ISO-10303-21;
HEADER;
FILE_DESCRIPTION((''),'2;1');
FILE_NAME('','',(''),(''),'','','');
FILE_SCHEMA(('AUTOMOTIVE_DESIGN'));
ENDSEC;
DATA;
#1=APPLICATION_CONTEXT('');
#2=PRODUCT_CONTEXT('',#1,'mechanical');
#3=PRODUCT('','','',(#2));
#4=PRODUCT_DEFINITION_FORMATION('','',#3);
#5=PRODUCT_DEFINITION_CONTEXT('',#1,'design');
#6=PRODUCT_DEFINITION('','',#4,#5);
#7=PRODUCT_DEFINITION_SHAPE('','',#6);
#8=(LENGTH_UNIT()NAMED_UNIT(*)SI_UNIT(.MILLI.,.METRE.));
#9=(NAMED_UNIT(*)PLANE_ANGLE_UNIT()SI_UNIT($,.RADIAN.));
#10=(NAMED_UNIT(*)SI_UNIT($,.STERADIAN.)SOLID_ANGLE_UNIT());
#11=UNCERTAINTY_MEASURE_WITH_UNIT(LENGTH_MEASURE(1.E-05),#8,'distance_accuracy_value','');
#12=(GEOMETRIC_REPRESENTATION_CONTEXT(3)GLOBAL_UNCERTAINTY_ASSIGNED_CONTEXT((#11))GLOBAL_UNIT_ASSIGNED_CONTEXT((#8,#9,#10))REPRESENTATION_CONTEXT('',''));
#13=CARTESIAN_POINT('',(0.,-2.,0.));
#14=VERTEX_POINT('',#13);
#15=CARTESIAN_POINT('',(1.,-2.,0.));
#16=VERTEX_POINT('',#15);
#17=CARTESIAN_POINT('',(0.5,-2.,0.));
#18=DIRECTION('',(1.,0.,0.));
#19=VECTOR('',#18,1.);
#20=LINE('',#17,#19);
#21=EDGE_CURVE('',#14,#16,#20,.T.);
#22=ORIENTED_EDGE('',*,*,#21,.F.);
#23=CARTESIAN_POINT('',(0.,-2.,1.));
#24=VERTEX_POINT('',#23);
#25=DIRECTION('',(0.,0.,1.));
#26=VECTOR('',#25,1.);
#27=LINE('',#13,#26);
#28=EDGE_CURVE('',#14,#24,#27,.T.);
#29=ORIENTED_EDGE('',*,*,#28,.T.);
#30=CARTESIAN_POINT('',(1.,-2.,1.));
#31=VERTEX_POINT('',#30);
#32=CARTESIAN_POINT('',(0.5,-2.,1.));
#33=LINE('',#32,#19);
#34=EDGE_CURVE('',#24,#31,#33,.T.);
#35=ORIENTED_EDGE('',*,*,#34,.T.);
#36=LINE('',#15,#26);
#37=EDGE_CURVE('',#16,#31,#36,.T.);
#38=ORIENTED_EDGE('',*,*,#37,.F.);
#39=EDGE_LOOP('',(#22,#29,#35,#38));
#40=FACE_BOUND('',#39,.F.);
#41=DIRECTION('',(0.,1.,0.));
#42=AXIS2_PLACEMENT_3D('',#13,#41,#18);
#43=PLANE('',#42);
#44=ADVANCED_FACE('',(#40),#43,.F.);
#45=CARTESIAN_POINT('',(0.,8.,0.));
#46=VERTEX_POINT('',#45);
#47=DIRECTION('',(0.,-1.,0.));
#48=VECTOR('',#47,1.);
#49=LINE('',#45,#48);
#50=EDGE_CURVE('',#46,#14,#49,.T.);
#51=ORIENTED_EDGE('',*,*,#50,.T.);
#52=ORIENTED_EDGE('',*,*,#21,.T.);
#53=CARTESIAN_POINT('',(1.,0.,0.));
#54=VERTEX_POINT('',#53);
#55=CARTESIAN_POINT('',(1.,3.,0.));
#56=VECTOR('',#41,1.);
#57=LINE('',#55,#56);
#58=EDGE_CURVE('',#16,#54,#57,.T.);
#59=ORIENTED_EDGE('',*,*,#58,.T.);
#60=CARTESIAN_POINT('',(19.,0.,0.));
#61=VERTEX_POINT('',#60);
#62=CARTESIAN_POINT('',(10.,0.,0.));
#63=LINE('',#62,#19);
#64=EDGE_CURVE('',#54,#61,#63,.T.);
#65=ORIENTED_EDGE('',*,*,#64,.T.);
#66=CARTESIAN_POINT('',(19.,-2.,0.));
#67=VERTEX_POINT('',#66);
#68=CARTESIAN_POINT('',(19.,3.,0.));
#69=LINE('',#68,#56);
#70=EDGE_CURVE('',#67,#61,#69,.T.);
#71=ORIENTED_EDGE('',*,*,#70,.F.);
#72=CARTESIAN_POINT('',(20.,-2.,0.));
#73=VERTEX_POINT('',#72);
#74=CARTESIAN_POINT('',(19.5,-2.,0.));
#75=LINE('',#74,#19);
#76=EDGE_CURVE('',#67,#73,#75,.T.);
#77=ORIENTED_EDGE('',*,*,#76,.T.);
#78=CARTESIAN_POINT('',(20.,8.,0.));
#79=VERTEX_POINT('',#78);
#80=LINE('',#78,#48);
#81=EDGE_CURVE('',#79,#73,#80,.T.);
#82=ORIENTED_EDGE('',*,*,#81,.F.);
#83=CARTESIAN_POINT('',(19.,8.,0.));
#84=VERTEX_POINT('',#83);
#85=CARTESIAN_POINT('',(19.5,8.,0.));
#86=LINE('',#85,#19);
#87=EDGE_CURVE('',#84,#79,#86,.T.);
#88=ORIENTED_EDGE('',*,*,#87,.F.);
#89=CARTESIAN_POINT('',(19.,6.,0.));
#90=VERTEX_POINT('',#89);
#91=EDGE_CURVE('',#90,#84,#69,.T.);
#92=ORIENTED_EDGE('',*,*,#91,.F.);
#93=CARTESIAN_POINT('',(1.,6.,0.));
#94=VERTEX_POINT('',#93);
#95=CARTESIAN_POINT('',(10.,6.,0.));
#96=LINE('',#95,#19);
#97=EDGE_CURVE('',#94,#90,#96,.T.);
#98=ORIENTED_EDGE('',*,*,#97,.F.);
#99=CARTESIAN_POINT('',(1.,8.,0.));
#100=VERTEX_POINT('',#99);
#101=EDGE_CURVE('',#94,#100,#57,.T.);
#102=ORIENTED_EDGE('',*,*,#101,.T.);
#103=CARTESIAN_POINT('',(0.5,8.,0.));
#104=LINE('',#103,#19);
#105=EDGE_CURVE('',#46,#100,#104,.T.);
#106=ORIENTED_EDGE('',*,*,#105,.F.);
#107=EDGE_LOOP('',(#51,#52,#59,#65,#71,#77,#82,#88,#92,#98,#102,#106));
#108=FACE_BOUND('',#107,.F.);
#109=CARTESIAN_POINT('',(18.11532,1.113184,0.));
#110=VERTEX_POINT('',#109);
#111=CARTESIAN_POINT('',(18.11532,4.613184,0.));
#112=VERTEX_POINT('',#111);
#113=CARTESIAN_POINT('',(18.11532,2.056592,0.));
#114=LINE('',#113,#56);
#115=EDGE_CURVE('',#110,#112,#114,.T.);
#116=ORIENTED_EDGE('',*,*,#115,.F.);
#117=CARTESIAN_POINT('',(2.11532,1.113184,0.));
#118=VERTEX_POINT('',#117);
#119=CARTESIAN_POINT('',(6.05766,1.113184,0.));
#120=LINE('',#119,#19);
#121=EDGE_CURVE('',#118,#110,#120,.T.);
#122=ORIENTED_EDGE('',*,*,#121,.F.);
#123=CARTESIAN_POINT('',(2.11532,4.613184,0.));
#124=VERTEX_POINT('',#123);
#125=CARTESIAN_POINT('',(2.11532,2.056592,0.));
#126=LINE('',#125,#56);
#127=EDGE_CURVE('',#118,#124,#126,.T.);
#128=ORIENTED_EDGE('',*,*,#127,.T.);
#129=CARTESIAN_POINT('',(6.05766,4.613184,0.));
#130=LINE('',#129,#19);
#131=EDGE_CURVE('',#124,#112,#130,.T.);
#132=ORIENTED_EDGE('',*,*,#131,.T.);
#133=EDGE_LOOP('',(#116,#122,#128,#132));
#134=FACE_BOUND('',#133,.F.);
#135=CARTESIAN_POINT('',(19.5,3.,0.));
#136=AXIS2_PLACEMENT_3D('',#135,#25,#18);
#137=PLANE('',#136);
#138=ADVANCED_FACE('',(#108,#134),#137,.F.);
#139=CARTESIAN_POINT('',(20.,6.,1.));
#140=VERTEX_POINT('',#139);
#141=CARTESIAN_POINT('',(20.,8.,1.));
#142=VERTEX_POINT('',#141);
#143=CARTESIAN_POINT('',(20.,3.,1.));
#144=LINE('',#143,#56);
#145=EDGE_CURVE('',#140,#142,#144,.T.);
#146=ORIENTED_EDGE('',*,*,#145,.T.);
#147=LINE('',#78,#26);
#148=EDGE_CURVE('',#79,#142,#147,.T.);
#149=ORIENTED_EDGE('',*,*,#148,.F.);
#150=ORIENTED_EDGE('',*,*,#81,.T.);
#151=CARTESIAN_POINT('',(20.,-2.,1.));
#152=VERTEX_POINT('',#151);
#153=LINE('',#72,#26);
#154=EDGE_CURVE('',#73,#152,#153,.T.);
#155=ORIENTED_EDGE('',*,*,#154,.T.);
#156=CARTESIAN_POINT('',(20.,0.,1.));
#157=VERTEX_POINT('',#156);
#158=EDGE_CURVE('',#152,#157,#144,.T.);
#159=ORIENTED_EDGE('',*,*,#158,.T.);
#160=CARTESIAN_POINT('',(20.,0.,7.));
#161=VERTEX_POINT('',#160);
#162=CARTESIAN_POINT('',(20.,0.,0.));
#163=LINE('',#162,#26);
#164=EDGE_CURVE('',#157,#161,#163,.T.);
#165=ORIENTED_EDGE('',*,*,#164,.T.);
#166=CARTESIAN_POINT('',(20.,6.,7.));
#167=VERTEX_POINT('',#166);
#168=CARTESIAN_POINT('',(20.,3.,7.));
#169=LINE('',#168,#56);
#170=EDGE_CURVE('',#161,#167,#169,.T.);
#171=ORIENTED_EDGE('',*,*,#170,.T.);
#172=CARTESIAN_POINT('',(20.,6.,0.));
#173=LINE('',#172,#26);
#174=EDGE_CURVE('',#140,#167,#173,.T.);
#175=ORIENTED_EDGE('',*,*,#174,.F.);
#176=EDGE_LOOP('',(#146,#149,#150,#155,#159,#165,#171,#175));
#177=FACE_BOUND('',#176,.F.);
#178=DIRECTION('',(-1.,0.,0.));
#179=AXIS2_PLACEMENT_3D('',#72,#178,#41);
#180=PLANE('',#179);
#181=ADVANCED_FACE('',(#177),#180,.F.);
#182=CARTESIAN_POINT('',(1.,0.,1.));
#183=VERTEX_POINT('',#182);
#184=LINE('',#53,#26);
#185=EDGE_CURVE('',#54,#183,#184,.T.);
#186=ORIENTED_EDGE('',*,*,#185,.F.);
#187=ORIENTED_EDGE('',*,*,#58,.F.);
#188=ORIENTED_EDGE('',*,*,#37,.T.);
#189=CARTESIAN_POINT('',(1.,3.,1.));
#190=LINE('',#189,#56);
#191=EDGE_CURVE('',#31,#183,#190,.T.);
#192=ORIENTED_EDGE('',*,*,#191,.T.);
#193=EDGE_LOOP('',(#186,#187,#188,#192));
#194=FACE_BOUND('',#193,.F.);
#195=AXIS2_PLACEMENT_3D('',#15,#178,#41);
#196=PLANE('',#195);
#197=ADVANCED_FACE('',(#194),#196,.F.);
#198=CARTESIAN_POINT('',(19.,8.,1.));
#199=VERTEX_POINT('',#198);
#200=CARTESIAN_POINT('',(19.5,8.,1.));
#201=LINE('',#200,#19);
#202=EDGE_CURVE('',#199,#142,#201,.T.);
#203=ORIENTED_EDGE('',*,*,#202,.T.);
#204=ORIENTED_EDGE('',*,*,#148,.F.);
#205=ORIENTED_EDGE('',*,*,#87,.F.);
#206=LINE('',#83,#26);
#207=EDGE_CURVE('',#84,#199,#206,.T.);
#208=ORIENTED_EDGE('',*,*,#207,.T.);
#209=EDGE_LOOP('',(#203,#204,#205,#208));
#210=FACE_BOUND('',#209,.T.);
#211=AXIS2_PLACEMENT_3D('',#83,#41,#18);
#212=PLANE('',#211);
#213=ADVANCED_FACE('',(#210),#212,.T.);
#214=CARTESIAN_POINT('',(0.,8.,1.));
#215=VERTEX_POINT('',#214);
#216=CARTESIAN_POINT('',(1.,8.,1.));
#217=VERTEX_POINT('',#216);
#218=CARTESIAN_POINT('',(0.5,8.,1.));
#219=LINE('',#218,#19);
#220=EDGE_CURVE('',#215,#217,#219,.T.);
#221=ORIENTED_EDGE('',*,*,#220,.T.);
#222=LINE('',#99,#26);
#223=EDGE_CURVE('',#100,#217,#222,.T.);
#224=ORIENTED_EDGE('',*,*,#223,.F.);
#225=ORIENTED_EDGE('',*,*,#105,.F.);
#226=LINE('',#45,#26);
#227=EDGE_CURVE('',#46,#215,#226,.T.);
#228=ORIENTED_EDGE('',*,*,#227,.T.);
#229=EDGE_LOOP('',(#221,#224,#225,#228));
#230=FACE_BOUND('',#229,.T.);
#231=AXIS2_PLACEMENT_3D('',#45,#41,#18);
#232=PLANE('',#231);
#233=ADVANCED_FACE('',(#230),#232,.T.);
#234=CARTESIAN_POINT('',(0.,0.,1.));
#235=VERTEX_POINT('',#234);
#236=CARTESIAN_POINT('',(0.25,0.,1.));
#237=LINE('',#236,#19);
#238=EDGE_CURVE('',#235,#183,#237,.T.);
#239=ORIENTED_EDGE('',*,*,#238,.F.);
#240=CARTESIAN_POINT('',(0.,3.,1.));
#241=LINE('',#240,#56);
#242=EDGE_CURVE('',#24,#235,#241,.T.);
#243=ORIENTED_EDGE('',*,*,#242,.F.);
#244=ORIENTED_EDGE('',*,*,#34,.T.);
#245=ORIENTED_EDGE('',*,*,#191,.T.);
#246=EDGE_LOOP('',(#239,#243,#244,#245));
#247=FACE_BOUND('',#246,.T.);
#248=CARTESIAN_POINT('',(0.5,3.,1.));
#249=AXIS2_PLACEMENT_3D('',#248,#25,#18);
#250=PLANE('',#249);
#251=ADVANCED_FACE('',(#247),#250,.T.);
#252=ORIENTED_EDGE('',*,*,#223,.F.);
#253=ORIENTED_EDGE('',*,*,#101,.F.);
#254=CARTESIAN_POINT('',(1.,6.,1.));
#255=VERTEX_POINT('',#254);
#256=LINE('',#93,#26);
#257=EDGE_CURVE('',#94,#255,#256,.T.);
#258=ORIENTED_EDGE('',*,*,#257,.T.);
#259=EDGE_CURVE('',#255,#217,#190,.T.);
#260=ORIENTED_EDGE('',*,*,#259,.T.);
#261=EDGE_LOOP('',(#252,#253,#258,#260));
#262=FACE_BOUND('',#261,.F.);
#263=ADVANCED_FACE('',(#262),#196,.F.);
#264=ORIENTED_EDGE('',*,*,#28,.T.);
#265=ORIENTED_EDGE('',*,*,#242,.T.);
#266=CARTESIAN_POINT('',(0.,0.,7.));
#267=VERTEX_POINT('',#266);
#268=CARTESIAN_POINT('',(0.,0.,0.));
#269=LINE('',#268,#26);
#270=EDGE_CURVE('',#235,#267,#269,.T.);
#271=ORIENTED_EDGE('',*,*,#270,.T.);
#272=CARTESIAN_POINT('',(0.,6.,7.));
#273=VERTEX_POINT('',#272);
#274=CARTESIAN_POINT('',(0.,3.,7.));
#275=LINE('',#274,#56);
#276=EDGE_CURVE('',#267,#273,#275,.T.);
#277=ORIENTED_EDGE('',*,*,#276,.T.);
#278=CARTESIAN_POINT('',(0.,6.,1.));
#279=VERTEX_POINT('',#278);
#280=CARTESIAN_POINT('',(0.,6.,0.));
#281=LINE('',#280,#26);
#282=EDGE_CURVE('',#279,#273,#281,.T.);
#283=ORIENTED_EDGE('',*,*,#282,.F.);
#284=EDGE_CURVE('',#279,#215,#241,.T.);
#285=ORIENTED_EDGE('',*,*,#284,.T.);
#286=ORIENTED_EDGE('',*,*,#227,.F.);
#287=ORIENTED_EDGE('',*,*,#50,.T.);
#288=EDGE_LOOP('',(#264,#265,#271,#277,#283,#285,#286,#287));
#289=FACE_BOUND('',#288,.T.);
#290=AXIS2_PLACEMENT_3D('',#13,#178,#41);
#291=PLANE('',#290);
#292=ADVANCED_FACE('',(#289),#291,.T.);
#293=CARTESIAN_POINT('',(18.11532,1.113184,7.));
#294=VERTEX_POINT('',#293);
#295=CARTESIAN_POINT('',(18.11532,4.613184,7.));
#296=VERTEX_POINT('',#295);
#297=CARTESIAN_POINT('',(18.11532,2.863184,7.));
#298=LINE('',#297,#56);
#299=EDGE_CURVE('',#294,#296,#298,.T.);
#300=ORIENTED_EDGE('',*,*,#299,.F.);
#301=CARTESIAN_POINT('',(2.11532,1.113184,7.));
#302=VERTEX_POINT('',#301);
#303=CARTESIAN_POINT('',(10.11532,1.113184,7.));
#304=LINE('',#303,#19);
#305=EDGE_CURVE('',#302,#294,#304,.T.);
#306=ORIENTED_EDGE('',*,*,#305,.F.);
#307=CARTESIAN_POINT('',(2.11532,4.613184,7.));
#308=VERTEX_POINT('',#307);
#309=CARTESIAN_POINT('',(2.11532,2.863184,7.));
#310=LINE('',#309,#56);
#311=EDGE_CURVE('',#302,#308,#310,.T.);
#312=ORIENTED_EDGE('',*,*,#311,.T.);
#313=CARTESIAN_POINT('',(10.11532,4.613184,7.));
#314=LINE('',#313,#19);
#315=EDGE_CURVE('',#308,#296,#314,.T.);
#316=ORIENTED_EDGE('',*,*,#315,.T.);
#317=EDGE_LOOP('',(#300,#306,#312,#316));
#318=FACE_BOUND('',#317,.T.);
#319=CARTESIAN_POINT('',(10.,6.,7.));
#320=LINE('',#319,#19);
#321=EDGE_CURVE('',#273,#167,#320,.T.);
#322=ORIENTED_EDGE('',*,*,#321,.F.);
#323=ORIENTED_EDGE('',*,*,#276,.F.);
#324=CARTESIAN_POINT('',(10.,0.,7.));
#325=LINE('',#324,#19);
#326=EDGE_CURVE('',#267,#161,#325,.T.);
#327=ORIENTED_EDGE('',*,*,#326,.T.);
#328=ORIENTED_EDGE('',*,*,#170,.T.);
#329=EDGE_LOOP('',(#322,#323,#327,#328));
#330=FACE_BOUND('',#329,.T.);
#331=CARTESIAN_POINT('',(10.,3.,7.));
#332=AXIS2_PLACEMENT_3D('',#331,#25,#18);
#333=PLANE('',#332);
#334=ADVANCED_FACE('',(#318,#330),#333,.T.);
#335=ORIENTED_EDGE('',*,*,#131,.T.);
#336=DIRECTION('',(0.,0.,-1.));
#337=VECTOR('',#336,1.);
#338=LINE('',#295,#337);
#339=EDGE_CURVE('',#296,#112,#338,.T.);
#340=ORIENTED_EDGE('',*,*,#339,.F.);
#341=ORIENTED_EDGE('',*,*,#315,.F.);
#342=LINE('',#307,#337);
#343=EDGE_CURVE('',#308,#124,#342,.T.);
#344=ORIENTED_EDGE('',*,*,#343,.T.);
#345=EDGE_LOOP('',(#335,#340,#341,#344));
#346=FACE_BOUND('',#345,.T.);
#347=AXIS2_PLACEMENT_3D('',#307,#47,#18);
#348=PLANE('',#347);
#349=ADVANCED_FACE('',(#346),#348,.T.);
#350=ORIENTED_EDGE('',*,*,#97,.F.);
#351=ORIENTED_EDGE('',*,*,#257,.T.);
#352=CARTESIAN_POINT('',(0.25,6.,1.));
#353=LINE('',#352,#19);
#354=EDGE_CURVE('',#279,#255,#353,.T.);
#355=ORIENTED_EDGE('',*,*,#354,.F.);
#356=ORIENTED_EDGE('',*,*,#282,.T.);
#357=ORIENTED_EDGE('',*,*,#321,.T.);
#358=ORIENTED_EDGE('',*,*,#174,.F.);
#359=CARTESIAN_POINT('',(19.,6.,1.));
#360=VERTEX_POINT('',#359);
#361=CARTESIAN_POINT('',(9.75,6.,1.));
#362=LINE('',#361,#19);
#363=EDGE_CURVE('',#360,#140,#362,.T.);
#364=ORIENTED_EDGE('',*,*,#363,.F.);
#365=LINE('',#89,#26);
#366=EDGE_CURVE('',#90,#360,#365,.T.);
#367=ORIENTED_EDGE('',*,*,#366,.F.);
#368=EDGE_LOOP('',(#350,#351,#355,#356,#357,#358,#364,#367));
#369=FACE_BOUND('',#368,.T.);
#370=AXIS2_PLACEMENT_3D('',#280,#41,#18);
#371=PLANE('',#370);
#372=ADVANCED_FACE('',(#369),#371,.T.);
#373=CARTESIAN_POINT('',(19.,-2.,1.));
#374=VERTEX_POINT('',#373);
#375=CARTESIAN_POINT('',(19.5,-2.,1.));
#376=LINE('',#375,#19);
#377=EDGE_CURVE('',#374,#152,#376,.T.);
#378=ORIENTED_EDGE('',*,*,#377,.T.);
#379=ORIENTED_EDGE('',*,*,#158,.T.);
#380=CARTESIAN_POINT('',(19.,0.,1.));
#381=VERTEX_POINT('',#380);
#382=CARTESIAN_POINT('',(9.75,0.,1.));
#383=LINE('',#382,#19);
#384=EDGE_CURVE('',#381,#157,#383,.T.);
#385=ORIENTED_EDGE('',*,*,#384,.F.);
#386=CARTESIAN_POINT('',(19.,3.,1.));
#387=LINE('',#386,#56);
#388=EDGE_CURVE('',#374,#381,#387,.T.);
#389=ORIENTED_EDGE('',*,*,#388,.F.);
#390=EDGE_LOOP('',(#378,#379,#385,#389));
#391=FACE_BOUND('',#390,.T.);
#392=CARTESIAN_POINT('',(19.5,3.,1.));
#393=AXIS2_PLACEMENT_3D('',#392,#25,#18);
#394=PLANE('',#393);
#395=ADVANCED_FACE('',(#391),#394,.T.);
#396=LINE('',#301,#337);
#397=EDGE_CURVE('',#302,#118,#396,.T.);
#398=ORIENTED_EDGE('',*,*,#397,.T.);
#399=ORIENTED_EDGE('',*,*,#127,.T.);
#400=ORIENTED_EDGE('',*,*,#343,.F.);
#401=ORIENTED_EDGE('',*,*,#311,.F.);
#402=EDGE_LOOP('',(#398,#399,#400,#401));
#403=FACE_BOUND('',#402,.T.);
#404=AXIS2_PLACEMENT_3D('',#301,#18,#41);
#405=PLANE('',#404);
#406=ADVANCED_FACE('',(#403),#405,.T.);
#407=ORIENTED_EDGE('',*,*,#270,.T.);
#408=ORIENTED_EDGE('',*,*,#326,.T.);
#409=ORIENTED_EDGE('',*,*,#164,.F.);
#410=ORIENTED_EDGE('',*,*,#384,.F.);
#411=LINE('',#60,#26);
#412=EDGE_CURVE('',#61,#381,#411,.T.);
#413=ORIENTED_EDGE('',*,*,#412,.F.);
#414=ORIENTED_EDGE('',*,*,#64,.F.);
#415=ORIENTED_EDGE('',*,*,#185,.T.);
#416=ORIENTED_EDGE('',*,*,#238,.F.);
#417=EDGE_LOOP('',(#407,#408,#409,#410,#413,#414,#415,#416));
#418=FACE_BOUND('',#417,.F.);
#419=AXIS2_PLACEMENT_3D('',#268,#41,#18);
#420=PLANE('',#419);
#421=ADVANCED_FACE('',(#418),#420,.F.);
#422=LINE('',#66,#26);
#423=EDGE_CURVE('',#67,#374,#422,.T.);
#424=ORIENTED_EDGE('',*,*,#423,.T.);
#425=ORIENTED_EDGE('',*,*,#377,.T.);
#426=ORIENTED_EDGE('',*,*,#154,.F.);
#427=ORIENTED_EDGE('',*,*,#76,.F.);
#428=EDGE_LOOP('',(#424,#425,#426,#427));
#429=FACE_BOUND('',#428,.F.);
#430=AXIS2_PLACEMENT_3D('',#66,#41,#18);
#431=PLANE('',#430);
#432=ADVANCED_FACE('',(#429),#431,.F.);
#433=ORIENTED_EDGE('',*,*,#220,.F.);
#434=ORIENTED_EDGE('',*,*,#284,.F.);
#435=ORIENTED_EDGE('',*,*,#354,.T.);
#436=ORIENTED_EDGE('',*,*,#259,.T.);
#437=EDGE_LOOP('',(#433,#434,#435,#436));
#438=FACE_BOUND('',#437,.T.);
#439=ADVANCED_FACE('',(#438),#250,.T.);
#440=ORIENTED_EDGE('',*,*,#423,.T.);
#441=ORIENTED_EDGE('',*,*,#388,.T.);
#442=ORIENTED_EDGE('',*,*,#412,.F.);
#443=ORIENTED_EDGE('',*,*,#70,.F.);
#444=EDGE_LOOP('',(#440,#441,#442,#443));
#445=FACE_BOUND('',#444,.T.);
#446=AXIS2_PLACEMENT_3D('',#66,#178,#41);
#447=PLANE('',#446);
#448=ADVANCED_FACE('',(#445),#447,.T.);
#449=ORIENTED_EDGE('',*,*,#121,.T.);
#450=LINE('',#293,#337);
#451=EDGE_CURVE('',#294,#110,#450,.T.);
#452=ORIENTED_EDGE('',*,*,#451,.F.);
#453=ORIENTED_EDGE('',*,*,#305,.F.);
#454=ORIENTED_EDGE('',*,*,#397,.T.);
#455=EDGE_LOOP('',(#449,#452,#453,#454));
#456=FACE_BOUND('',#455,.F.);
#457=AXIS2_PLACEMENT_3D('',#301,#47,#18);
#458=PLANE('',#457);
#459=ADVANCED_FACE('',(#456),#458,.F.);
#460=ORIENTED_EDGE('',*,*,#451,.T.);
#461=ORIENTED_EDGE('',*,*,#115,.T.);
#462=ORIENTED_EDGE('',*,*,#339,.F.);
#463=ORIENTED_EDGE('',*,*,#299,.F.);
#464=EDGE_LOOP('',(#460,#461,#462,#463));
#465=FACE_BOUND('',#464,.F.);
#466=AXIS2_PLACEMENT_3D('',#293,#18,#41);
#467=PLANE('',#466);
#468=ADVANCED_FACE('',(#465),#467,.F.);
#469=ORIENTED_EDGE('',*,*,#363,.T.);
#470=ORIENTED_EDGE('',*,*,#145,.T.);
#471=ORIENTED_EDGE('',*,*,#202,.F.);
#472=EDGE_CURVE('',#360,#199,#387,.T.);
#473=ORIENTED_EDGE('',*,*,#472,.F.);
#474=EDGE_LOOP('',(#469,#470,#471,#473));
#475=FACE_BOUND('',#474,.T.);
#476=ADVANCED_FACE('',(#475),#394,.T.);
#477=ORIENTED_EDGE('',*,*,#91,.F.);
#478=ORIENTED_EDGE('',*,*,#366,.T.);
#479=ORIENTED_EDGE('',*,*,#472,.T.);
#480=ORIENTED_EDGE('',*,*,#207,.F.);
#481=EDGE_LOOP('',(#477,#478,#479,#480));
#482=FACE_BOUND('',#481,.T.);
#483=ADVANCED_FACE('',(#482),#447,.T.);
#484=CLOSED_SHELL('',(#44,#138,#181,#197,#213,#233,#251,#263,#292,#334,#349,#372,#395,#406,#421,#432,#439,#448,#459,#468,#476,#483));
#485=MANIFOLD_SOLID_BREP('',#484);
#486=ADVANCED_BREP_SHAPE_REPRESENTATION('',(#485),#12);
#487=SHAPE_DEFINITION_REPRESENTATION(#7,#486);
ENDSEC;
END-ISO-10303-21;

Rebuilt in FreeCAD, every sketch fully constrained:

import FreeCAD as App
import Part
import Sketcher
Q = App.Units.Quantity


def add_polygon(sketch, points):
    """Adds a closed chain of lines whose ends are joined by coincident constraints."""
    first, n = sketch.GeometryCount, len(points)
    for a, b in zip(points, points[1:] + points[:1]):
        sketch.addGeometry(Part.LineSegment(App.Vector(*a, 0), App.Vector(*b, 0)), False)
    for i in range(n):
        sketch.addConstraint(Sketcher.Constraint("Coincident", first + i, 2, first + (i + 1) % n, 1))

doc = App.newDocument("Part")
body = doc.addObject("PartDesign::Body", "Body")

# Sketch on XY plane
sketch1 = doc.addObject("Sketcher::SketchObject", "Sketch")
body.addObject(sketch1)
sketch1.AttachmentSupport = (doc.XY_Plane, [""])
sketch1.MapMode = "FlatFace"
add_polygon(sketch1, [(0, 8), (0, -2), (1, -2), (1, 8)])  # lines 0-3
sketch1.addConstraint([
    Sketcher.Constraint("Vertical", 0),
    Sketcher.Constraint("Horizontal", 1),
    Sketcher.Constraint("Vertical", 2),
    Sketcher.Constraint("Horizontal", 3),
    Sketcher.Constraint("PointOnObject", 0, 2, -2),
    Sketcher.Constraint("DistanceX", 1, 1, 1, 2, Q("1 mm")),
    Sketcher.Constraint("DistanceY", 0, 2, 0, 1, Q("10 mm")),
    Sketcher.Constraint("DistanceY", 0, 2, -1, 1, Q("2 mm")),
])
pad1 = doc.addObject("PartDesign::Pad", "Pad")
body.addObject(pad1)
pad1.Profile = sketch1
pad1.Length = 1
body2 = doc.addObject("PartDesign::Body", "Body001")

# Sketch on XY plane
sketch2 = doc.addObject("Sketcher::SketchObject", "Sketch001")
body2.addObject(sketch2)
sketch2.AttachmentSupport = (doc.getObject("XY_Plane001"), [""])
sketch2.MapMode = "FlatFace"
add_polygon(sketch2, [(19, 8), (19, -2), (20, -2), (20, 8)])  # lines 0-3
sketch2.addConstraint([
    Sketcher.Constraint("Vertical", 0),
    Sketcher.Constraint("Horizontal", 1),
    Sketcher.Constraint("Vertical", 2),
    Sketcher.Constraint("Horizontal", 3),
    Sketcher.Constraint("DistanceX", 1, 1, 1, 2, Q("1 mm")),
    Sketcher.Constraint("DistanceY", 0, 2, 0, 1, Q("10 mm")),
    Sketcher.Constraint("DistanceX", -1, 1, 0, 2, Q("19 mm")),
    Sketcher.Constraint("DistanceY", 0, 2, -1, 1, Q("2 mm")),
])
pad2 = doc.addObject("PartDesign::Pad", "Pad001")
body2.addObject(pad2)
pad2.Profile = sketch2
pad2.Length = 1
body3 = doc.addObject("PartDesign::Body", "Body002")

# Sketch on XY plane
sketch3 = doc.addObject("Sketcher::SketchObject", "Sketch002")
body3.addObject(sketch3)
sketch3.AttachmentSupport = (doc.getObject("XY_Plane002"), [""])
sketch3.MapMode = "FlatFace"
add_polygon(sketch3, [(0, 6), (0, 0), (20, 0), (20, 6)])  # lines 0-3
sketch3.addConstraint([
    Sketcher.Constraint("Vertical", 0),
    Sketcher.Constraint("Horizontal", 1),
    Sketcher.Constraint("Vertical", 2),
    Sketcher.Constraint("Horizontal", 3),
    Sketcher.Constraint("Coincident", 0, 2, -1, 1),
    Sketcher.Constraint("DistanceX", 1, 1, 1, 2, Q("20 mm")),
    Sketcher.Constraint("DistanceY", 0, 2, 0, 1, Q("6 mm")),
])
pad3 = doc.addObject("PartDesign::Pad", "Pad002")
body3.addObject(pad3)
pad3.Profile = sketch3
pad3.Length = 7

# Sketch on XY plane
sketch4 = doc.addObject("Sketcher::SketchObject", "Sketch003")
body3.addObject(sketch4)
sketch4.AttachmentSupport = (doc.getObject("XY_Plane002"), [""])
sketch4.MapMode = "FlatFace"
sketch4.AttachmentOffset = App.Placement(App.Vector(0, 0, 7), App.Rotation())
add_polygon(sketch4, [(2.1, 4.6), (2.1, 1.1), (18.1, 1.1), (18.1, 4.6)])  # lines 0-3
sketch4.addConstraint([
    Sketcher.Constraint("Vertical", 0),
    Sketcher.Constraint("Horizontal", 1),
    Sketcher.Constraint("Vertical", 2),
    Sketcher.Constraint("Horizontal", 3),
    Sketcher.Constraint("DistanceX", 1, 1, 1, 2, Q("16 mm")),
    Sketcher.Constraint("DistanceY", 0, 2, 0, 1, Q("3.5 mm")),
    Sketcher.Constraint("DistanceX", -1, 1, 0, 2, Q("2.11532 mm")),
    Sketcher.Constraint("DistanceY", -1, 1, 0, 2, Q("1.113184 mm")),
])
pocket1 = doc.addObject("PartDesign::Pocket", "Pocket")
body3.addObject(pocket1)
pocket1.Profile = sketch4
pocket1.Length = 9
doc.recompute()

boolean = doc.addObject("PartDesign::Boolean", "Boolean")
body3.addObject(boolean)
boolean.Type = "Fuse"
boolean.addObjects([body])
doc.recompute()

boolean2 = doc.addObject("PartDesign::Boolean", "Boolean001")
body3.addObject(boolean2)
boolean2.Type = "Fuse"
boolean2.addObjects([body2])

doc.recompute()
